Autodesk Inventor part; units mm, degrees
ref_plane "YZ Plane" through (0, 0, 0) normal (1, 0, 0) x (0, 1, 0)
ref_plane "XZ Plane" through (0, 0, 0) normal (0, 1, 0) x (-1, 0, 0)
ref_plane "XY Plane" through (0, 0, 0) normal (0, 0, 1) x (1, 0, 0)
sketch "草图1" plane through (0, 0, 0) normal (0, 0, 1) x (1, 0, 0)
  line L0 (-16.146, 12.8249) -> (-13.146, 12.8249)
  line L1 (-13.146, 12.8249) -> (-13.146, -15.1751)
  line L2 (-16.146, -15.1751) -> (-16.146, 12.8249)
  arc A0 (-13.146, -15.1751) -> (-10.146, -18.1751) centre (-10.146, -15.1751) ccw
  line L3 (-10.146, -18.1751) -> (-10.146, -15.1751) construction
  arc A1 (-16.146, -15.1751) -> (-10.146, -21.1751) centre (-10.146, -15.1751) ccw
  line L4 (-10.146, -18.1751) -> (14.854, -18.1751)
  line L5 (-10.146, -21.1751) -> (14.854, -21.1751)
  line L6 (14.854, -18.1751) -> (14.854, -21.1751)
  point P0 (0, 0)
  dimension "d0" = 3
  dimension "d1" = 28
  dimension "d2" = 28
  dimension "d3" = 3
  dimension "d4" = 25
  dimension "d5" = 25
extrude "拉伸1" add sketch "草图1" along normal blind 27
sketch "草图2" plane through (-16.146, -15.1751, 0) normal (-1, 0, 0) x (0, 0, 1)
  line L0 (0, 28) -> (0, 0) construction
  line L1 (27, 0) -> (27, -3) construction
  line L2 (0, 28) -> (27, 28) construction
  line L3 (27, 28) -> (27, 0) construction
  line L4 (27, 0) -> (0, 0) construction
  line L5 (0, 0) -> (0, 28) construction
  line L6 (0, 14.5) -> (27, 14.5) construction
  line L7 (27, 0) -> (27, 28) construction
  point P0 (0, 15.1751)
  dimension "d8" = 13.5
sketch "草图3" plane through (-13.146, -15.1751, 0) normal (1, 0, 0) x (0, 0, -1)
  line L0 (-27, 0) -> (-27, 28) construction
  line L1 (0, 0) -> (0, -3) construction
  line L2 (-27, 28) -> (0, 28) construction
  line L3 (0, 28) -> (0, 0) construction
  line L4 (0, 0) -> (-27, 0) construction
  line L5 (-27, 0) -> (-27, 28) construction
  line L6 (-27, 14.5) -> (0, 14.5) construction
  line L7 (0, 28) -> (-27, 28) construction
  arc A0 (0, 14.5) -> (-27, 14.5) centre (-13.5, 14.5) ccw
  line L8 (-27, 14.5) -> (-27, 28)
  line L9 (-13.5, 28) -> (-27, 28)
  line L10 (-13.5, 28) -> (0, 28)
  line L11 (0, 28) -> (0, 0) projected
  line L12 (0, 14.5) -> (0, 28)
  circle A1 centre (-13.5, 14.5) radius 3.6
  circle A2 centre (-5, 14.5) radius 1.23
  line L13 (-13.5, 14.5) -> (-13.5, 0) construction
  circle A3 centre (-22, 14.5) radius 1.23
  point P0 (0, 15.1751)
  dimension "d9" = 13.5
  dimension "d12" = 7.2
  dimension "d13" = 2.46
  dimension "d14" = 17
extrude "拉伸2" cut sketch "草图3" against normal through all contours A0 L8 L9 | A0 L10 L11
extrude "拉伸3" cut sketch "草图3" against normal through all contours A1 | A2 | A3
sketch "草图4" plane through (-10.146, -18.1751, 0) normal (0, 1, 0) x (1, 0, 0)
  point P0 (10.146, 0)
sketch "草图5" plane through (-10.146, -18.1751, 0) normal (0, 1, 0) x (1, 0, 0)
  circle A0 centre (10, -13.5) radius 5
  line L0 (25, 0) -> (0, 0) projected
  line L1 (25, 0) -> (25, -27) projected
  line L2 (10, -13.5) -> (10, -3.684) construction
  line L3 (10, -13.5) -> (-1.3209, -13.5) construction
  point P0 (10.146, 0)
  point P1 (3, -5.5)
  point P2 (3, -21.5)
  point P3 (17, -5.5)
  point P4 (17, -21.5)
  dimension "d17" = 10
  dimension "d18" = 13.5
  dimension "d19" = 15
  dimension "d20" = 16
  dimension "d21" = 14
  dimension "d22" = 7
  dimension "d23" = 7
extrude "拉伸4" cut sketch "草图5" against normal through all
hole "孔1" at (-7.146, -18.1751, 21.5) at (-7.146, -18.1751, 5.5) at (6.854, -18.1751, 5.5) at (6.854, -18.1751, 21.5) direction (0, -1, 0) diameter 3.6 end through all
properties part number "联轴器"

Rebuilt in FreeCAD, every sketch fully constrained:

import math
import FreeCAD as App
import Part
import Sketcher
Q = App.Units.Quantity

doc = App.newDocument("Part")
body = doc.addObject("PartDesign::Body", "Body")

# Sketch on XY plane
sketch1 = body.newObject("Sketcher::SketchObject", "Sketch")
sketch1.AttachmentSupport = (doc.getObject("XY_Plane"), [""])
sketch1.MapMode = "FlatFace"
sketch1.addGeometry([
    Part.LineSegment(App.Vector(-13.1, 12.8, 0), App.Vector(-16.1, 12.8, 0)),  # 0
    Part.LineSegment(App.Vector(-16.1, 12.8, 0), App.Vector(-16.1, -15.2, 0)),  # 1
    Part.ArcOfCircle(Part.Circle(App.Vector(-10.1, -15.2, 0), App.Vector(0, 0, 1), 6), math.radians(180), math.radians(270)),  # 2
    Part.LineSegment(App.Vector(-10.1, -21.2, 0), App.Vector(14.9, -21.2, 0)),  # 3
    Part.LineSegment(App.Vector(14.9, -21.2, 0), App.Vector(14.9, -18.2, 0)),  # 4
    Part.LineSegment(App.Vector(14.9, -18.2, 0), App.Vector(-10.1, -18.2, 0)),  # 5
    Part.ArcOfCircle(Part.Circle(App.Vector(-10.1, -15.2, 0), App.Vector(0, 0, 1), 3), math.radians(180), math.radians(270)),  # 6
    Part.LineSegment(App.Vector(-13.1, -15.2, 0), App.Vector(-13.1, 12.8, 0)),  # 7
], False)
sketch1.addConstraint([
    Sketcher.Constraint("Coincident", 0, 2, 1, 1),
    Sketcher.Constraint("Tangent", 1, 2, 2, 1),
    Sketcher.Constraint("Tangent", 2, 2, 3, 1),
    Sketcher.Constraint("Coincident", 3, 2, 4, 1),
    Sketcher.Constraint("Coincident", 4, 2, 5, 1),
    Sketcher.Constraint("Tangent", 5, 2, 6, 2),
    Sketcher.Constraint("Tangent", 6, 1, 7, 1),
    Sketcher.Constraint("Coincident", 7, 2, 0, 1),
    Sketcher.Constraint("Horizontal", 0),
    Sketcher.Constraint("Vertical", 1),
    Sketcher.Constraint("Horizontal", 3),
    Sketcher.Constraint("Vertical", 4),
    Sketcher.Constraint("Horizontal", 5),
    Sketcher.Constraint("Vertical", 7),
    Sketcher.Constraint("Coincident", 6, 3, 2, 3),
    Sketcher.Constraint("Radius", 6, Q("3 mm")),
    Sketcher.Constraint("DistanceX", 0, 2, 0, 1, Q("3 mm")),
    Sketcher.Constraint("DistanceX", 3, 1, 3, 2, Q("25 mm")),
    Sketcher.Constraint("DistanceY", 1, 2, 1, 1, Q("28 mm")),
    Sketcher.Constraint("DistanceX", 2, 3, -1, 1, Q("10.146 mm")),
    Sketcher.Constraint("DistanceY", 2, 3, -1, 1, Q("15.175 mm")),
])
pad1 = body.newObject("PartDesign::Pad", "Pad")
pad1.Profile = sketch1
pad1.Length = 27

# Sketch on YZ plane
sketch2 = body.newObject("Sketcher::SketchObject", "Sketch001")
sketch2.AttachmentSupport = (doc.getObject("YZ_Plane"), [""])
sketch2.MapMode = "FlatFace"
sketch2.AttachmentOffset = App.Placement(App.Vector(0, 0, -13.146), App.Rotation())
sketch2.addGeometry([
    Part.ArcOfCircle(Part.Circle(App.Vector(-1, 14, 0), App.Vector(0, 0, 1), 14), math.radians(0), math.radians(90)),  # 0
    Part.LineSegment(App.Vector(13, 14, 0), App.Vector(13, 27, 0)),  # 1
    Part.LineSegment(App.Vector(13, 27, 0), App.Vector(-1, 27, 0)),  # 2
    Part.ArcOfCircle(Part.Circle(App.Vector(-1, 14, 0), App.Vector(0, 0, 1), 14), math.radians(-90), math.radians(0)),  # 3
    Part.LineSegment(App.Vector(-1, 0, 0), App.Vector(13, 0, 0)),  # 4
    Part.LineSegment(App.Vector(13, 0, 0), App.Vector(13, 14, 0)),  # 5
], False)
sketch2.addConstraint([
    Sketcher.Constraint("Tangent", 0, 1, 1, 1),
    Sketcher.Constraint("Coincident", 1, 2, 2, 1),
    Sketcher.Constraint("Tangent", 2, 2, 0, 2),
    Sketcher.Constraint("Tangent", 3, 1, 4, 1),
    Sketcher.Constraint("Coincident", 4, 2, 5, 1),
    Sketcher.Constraint("Tangent", 5, 2, 3, 2),
    Sketcher.Constraint("Vertical", 1),
    Sketcher.Constraint("Horizontal", 2),
    Sketcher.Constraint("Horizontal", 4),
    Sketcher.Constraint("Vertical", 5),
    Sketcher.Constraint("Coincident", 3, 3, 0, 3),
    Sketcher.Constraint("Equal", 0, 3),
    Sketcher.Constraint("PointOnObject", 3, 1, -1),
    Sketcher.Constraint("Radius", 0, Q("13.5 mm")),
    Sketcher.Constraint("DistanceX", 0, 3, -1, 1, Q("0.675 mm")),
])
pocket1 = body.newObject("PartDesign::Pocket", "Pocket")
pocket1.Profile = sketch2
pocket1.Type = "ThroughAll"

# Sketch on YZ plane
sketch3 = body.newObject("Sketcher::SketchObject", "Sketch002")
sketch3.AttachmentSupport = (doc.getObject("YZ_Plane"), [""])
sketch3.MapMode = "FlatFace"
sketch3.AttachmentOffset = App.Placement(App.Vector(0, 0, -13.146), App.Rotation())
sketch3.addGeometry([
    Part.Circle(App.Vector(-0.7, 13.5, 0), App.Vector(0, 0, 1), 3.6),
    Part.Circle(App.Vector(-0.7, 5, 0), App.Vector(0, 0, 1), 1.2),
    Part.Circle(App.Vector(-0.7, 22, 0), App.Vector(0, 0, 1), 1.2),
], False)
sketch3.addConstraint([
    Sketcher.Constraint("Equal", 1, 2),
    Sketcher.Constraint("Vertical", 0, 3, 1, 3),
    Sketcher.Constraint("Vertical", 1, 3, 2, 3),
    Sketcher.Constraint("Diameter", 0, Q("7.2 mm")),
    Sketcher.Constraint("Diameter", 1, Q("2.46 mm")),
    Sketcher.Constraint("DistanceY", 1, 3, 2, 3, Q("17 mm")),
    Sketcher.Constraint("DistanceY", -1, 1, 0, 3, Q("13.5 mm")),
    Sketcher.Constraint("DistanceY", -1, 1, 1, 3, Q("5 mm")),
    Sketcher.Constraint("DistanceX", 0, 3, -1, 1, Q("0.675 mm")),
])
pocket2 = body.newObject("PartDesign::Pocket", "Pocket001")
pocket2.Profile = sketch3
pocket2.Type = "ThroughAll"

# Sketch on XZ plane
sketch4 = body.newObject("Sketcher::SketchObject", "Sketch003")
sketch4.AttachmentSupport = (doc.getObject("XZ_Plane"), [""])
sketch4.MapMode = "FlatFace"
sketch4.AttachmentOffset = App.Placement(App.Vector(0, 0, 18.1751), App.Rotation())
sketch4.addGeometry(Part.Circle(App.Vector(0, 14, 0), App.Vector(0, 0, 1), 5), False)
sketch4.addConstraint([
    Sketcher.Constraint("Diameter", 0, Q("10 mm")),
    Sketcher.Constraint("DistanceY", -1, 1, 0, 3, Q("13.5 mm")),
    Sketcher.Constraint("DistanceX", 0, 3, -1, 1, Q("0.146 mm")),
])
pocket3 = body.newObject("PartDesign::Pocket", "Pocket002")
pocket3.Profile = sketch4
pocket3.Type = "ThroughAll"
pocket3.Reversed = True

# Sketch on XZ plane
sketch5 = body.newObject("Sketcher::SketchObject", "Sketch004")
sketch5.AttachmentSupport = (doc.getObject("XZ_Plane"), [""])
sketch5.MapMode = "FlatFace"
sketch5.AttachmentOffset = App.Placement(App.Vector(0, 0, 18.1751), App.Rotation())
sketch5.addGeometry([
    Part.Circle(App.Vector(-7.1, 21.5, 0), App.Vector(0, 0, 1), 1.8),
    Part.Circle(App.Vector(-7.1, 5.5, 0), App.Vector(0, 0, 1), 1.8),
    Part.Circle(App.Vector(6.9, 5.5, 0), App.Vector(0, 0, 1), 1.8),
    Part.Circle(App.Vector(6.9, 21.5, 0), App.Vector(0, 0, 1), 1.8),
], False)
sketch5.addConstraint([
    Sketcher.Constraint("Equal", 0, 1),
    Sketcher.Constraint("Equal", 1, 2),
    Sketcher.Constraint("Equal", 2, 3),
    Sketcher.Constraint("Horizontal", 1, 3, 2, 3),
    Sketcher.Constraint("Horizontal", 0, 3, 3, 3),
    Sketcher.Constraint("Vertical", 0, 3, 1, 3),
    Sketcher.Constraint("Vertical", 2, 3, 3, 3),
    Sketcher.Constraint("Diameter", 0, Q("3.6 mm")),
    Sketcher.Constraint("DistanceY", 1, 3, 0, 3, Q("16 mm")),
    Sketcher.Constraint("DistanceX", 1, 3, 2, 3, Q("14 mm")),
    Sketcher.Constraint("DistanceY", -1, 1, 0, 3, Q("21.5 mm")),
    Sketcher.Constraint("DistanceX", 0, 3, -1, 1, Q("7.146 mm")),
])
doc.recompute()
hole = body.newObject("PartDesign::Hole", "Hole")
hole.Profile = sketch5
hole.ThreadType = "None"
hole.Diameter = 3.6
hole.DepthType = "ThroughAll"
hole.Reversed = True

doc.recompute()
